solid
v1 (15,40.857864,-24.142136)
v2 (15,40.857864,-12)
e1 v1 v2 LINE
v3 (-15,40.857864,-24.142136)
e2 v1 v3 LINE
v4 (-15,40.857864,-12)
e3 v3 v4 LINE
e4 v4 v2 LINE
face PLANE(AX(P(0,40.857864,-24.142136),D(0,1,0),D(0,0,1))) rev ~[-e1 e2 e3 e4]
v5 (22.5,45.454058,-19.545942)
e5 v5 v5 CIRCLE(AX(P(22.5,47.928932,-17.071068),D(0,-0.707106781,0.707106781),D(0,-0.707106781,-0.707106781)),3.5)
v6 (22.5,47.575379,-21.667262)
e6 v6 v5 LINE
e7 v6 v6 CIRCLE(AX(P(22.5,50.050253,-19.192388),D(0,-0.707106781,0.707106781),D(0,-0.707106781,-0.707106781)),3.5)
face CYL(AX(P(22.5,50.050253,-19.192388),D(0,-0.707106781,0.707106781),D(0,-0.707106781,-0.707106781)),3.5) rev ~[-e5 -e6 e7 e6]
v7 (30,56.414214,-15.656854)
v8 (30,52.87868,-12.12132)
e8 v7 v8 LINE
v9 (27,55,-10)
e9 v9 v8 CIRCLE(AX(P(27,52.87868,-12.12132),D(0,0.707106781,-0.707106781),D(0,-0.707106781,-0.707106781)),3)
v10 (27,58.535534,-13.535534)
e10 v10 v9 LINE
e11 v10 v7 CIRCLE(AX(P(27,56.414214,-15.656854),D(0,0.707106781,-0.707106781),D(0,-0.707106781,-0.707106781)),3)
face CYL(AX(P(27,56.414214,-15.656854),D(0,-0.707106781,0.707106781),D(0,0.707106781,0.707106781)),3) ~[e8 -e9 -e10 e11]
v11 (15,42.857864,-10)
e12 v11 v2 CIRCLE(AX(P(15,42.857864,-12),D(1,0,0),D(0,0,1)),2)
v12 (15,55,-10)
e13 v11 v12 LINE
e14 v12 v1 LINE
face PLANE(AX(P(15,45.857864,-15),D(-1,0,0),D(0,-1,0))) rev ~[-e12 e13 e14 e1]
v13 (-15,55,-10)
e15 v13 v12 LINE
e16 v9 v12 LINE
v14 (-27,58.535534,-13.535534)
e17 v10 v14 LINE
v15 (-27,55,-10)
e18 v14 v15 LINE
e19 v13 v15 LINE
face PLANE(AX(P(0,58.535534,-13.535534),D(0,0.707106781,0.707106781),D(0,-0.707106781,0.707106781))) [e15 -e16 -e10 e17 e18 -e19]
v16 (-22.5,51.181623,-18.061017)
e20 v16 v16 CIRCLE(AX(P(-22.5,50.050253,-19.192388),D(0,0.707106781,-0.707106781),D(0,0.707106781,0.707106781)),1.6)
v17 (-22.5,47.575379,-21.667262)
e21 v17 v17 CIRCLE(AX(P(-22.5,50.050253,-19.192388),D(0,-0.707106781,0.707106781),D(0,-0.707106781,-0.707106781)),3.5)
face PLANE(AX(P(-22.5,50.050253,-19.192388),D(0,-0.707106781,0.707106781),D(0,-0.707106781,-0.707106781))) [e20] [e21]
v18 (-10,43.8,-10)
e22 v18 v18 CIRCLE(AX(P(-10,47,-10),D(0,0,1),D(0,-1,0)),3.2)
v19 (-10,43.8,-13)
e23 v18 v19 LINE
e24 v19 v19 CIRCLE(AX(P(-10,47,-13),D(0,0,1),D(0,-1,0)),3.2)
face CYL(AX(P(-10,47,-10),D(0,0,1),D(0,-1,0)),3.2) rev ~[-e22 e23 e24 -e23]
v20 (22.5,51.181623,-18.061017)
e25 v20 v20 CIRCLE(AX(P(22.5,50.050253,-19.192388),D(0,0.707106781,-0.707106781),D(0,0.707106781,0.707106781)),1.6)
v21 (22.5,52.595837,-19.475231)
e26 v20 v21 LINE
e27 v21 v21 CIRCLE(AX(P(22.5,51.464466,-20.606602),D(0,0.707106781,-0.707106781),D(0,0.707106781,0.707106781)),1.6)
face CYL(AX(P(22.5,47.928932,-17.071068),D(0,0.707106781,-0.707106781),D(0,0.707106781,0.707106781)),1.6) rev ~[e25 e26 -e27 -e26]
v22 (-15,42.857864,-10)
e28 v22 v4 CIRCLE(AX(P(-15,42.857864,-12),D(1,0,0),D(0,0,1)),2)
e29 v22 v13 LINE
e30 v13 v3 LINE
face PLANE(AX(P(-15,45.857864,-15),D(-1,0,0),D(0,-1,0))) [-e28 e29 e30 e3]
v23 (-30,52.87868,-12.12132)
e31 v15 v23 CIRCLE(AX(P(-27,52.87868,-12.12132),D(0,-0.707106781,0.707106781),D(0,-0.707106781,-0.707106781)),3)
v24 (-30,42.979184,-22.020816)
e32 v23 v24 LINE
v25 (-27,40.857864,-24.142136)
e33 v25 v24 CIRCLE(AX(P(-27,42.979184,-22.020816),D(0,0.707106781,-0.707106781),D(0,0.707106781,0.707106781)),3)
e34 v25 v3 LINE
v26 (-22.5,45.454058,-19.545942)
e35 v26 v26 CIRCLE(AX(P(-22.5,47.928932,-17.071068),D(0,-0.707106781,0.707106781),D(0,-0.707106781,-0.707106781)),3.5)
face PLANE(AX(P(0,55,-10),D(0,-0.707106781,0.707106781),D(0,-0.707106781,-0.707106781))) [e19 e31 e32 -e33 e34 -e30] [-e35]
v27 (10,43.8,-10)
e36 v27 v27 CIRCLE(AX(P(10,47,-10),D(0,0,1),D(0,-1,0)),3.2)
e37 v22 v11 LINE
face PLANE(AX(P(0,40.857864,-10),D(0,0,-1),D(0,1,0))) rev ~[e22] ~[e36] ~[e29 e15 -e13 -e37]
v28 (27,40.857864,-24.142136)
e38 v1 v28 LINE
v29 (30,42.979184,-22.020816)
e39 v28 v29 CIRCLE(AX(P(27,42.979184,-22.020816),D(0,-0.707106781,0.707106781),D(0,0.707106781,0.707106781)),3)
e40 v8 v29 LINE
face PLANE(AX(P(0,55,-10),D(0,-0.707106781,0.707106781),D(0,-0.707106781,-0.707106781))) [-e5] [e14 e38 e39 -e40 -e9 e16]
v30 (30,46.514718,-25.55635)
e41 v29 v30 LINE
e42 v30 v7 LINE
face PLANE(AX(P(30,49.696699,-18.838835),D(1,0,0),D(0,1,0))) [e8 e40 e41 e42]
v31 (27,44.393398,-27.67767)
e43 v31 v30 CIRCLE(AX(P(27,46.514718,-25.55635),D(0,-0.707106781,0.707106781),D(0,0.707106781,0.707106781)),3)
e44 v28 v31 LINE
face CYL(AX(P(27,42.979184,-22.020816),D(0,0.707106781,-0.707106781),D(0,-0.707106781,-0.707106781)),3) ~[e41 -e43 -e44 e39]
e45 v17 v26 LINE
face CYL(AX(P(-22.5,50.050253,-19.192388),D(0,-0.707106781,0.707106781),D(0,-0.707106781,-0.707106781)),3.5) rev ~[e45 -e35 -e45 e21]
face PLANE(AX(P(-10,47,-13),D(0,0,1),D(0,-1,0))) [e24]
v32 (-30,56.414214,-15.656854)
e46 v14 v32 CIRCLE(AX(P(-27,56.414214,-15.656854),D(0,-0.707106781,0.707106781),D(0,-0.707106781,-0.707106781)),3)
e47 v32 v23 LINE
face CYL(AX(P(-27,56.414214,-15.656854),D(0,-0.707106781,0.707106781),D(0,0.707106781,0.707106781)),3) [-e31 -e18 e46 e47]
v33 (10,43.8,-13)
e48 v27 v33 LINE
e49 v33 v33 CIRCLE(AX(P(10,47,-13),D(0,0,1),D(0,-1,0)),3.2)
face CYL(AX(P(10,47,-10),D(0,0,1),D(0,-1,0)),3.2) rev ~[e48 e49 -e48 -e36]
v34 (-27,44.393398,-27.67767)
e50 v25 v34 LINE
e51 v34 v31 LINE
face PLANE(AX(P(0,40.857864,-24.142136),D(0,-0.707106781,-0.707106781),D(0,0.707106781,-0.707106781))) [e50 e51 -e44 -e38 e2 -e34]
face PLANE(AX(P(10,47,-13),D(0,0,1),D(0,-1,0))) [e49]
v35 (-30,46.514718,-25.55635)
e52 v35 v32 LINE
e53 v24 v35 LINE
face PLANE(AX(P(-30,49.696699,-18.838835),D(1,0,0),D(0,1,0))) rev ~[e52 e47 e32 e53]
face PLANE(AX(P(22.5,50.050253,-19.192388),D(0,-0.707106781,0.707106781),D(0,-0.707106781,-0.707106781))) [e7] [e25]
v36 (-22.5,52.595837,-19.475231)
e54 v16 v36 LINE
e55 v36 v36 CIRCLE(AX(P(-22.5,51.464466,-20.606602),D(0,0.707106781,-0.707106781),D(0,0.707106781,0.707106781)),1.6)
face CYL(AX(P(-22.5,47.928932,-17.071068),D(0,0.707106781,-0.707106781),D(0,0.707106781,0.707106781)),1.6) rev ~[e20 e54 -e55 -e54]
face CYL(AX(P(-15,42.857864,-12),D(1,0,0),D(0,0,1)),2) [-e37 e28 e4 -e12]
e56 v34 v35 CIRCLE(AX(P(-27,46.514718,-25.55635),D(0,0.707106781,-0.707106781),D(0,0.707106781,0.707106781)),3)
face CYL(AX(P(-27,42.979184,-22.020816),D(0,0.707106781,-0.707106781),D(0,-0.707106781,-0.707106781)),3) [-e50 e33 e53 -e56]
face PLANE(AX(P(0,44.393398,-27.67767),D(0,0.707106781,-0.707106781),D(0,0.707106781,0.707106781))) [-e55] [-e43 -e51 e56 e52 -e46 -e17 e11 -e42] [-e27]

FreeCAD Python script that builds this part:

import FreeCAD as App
import Part
import Sketcher
Q = App.Units.Quantity


def edges_at(feature, points):
    """Names of the edges that pass closest to the given points."""
    edges = feature.Shape.Edges
    near = lambda p: min(range(len(edges)), key=lambda i: edges[i].distToShape(Part.Vertex(*p))[0])
    return sorted({f"Edge{near(p) + 1}" for p in points})


def add_polygon(sketch, points):
    """Adds a closed chain of lines whose ends are joined by coincident constraints."""
    first, n = sketch.GeometryCount, len(points)
    for a, b in zip(points, points[1:] + points[:1]):
        sketch.addGeometry(Part.LineSegment(App.Vector(*a, 0), App.Vector(*b, 0)), False)
    for i in range(n):
        sketch.addConstraint(Sketcher.Constraint("Coincident", first + i, 2, first + (i + 1) % n, 1))

doc = App.newDocument("Part")
params = doc.addObject("Spreadsheet::Sheet", "Params")
for row, (alias, value) in enumerate([
    ("sketch1_length", "20.000001 mm"),
    ("pad1_length", "30 mm"),
    ("sketch2_length", "20.000001 mm"),
    ("sketch2_length2", "5 mm"),
    ("pad2_length", "60 mm"),
    ("sketch3_diameter", "6.4 mm"),
    ("pocket1_length", "3 mm"),
    ("sketch4_diameter", "3.2 mm"),
    ("hole_diameter", "3.2 mm"),
    ("hole_cbore_diameter", "7 mm"),
    ("hole_cbore_depth", "3 mm"),
    ("fillet_radius", "2 mm"),
    ("fillet2_radius", "3 mm"),
], start=1):
    params.set(f"A{row}", alias)
    params.set(f"B{row}", "=" + value)
    params.setAlias(f"B{row}", alias)

body = doc.addObject("PartDesign::Body", "Body")

# Sketch on YZ plane
sketch1 = body.newObject("Sketcher::SketchObject", "Sketch")
sketch1.AttachmentSupport = (doc.getObject("YZ_Plane"), [""])
sketch1.MapMode = "FlatFace"
add_polygon(sketch1, [(-14, -14), (0, 0), (-14, 0)])  # lines 0-2
sketch1.addConstraint(Sketcher.Constraint("Horizontal", 1))
sketch1.addConstraint(Sketcher.Constraint("Vertical", 2))
sketch1.addConstraint(Sketcher.Constraint("Coincident", 0, 2, -1, 1))
sketch1.addConstraint(Sketcher.Constraint("Equal", 1, 2))
sketch1.addConstraint(Sketcher.Constraint("Distance", 0, Q("20.000001 mm")))
sketch1.setExpression("Constraints[7]", "Params.sketch1_length")
pad1 = body.newObject("PartDesign::Pad", "Pad")
pad1.Profile = sketch1
pad1.setExpression("Length", "Params.pad1_length")
pad1.Midplane = True

# Sketch on YZ plane
sketch2 = body.newObject("Sketcher::SketchObject", "Sketch001")
sketch2.AttachmentSupport = (doc.getObject("YZ_Plane"), [""])
sketch2.MapMode = "FlatFace"
add_polygon(sketch2, [(0, 0), (-14, -14), (-11, -18), (4, -4)])  # lines 0-3
sketch2.addConstraint(Sketcher.Constraint("Coincident", 3, 2, -1, 1))
sketch2.addConstraint(Sketcher.Constraint("Perpendicular", 0, 1))
sketch2.addConstraint(Sketcher.Constraint("Perpendicular", 1, 2))
sketch2.addConstraint(Sketcher.Constraint("Perpendicular", 2, 3))
sketch2.addConstraint(Sketcher.Constraint("Angle", 0, Q("-135 deg")))
sketch2.addConstraint(Sketcher.Constraint("Distance", 0, Q("20.000001 mm")))
sketch2.addConstraint(Sketcher.Constraint("Distance", 1, Q("5 mm")))
sketch2.setExpression("Constraints[9]", "Params.sketch2_length")
sketch2.setExpression("Constraints[10]", "Params.sketch2_length2")
pad2 = body.newObject("PartDesign::Pad", "Pad001")
pad2.Profile = sketch2
pad2.setExpression("Length", "Params.pad2_length")
pad2.Midplane = True

# Sketch on XY plane
sketch3 = body.newObject("Sketcher::SketchObject", "Sketch002")
sketch3.AttachmentSupport = (doc.getObject("XY_Plane"), [""])
sketch3.MapMode = "FlatFace"
sketch3.addGeometry(Part.Circle(App.Vector(10, -8, 0), App.Vector(0, 0, 1), 3.2), False)
sketch3.addGeometry(Part.Circle(App.Vector(-10, -8, 0), App.Vector(0, 0, 1), 3.2), False)
sketch3.addConstraint(Sketcher.Constraint("Equal", 0, 1))
sketch3.addConstraint(Sketcher.Constraint("Symmetric", 0, 3, 1, 3, -2))
sketch3.addConstraint(Sketcher.Constraint("Diameter", 0, Q("6.4 mm")))
sketch3.addConstraint(Sketcher.Constraint("DistanceX", -1, 1, 0, 3, Q("10 mm")))
sketch3.addConstraint(Sketcher.Constraint("DistanceY", 0, 3, -1, 1, Q("8 mm")))
sketch3.setExpression("Constraints[2]", "Params.sketch3_diameter")
pocket1 = body.newObject("PartDesign::Pocket", "Pocket")
pocket1.Profile = sketch3
pocket1.setExpression("Length", "Params.pocket1_length")

# Sketch on an angled plane
sketch4 = body.newObject("Sketcher::SketchObject", "Sketch003")
sketch4.Placement = App.Placement(App.Vector(0, 0, 0), App.Rotation(App.Vector(0, -0.707106781, -0.707106781), App.Vector(0.999999999, 0, 0), App.Vector(0, -0.707106781, 0.707106781), "ZXY"))
sketch4.addGeometry(Part.Circle(App.Vector(10, 22.5, 0), App.Vector(0, 0, 1), 1.6), False)
sketch4.addGeometry(Part.Circle(App.Vector(10, -22.5, 0), App.Vector(0, 0, 1), 1.6), False)
sketch4.addConstraint(Sketcher.Constraint("Equal", 0, 1))
sketch4.addConstraint(Sketcher.Constraint("Symmetric", 0, 3, 1, 3, -1))
sketch4.addConstraint(Sketcher.Constraint("Diameter", 0, Q("3.2 mm")))
sketch4.addConstraint(Sketcher.Constraint("DistanceX", -1, 1, 0, 3, Q("10 mm")))
sketch4.addConstraint(Sketcher.Constraint("DistanceY", 1, 3, 0, 3, Q("45 mm")))
sketch4.setExpression("Constraints[2]", "Params.sketch4_diameter")
doc.recompute()
hole = body.newObject("PartDesign::Hole", "Hole")
hole.Profile = sketch4
hole.ThreadType = "None"
hole.setExpression("Diameter", "Params.hole_diameter")
hole.DepthType = "ThroughAll"
hole.HoleCutType = "Counterbore"
hole.setExpression("HoleCutDiameter", "Params.hole_cbore_diameter")
hole.setExpression("HoleCutDepth", "Params.hole_cbore_depth")
doc.recompute()

fillet = body.newObject("PartDesign::Fillet", "Fillet")
fillet.Base = (hole, edges_at(hole, [(0, -14.142, 0)]))
fillet.setExpression("Radius", "Params.fillet_radius")
doc.recompute()

fillet2 = body.newObject("PartDesign::Fillet", "Fillet001")
fillet2.Base = (fillet, edges_at(fillet, [
    (-30, 1.768, -1.768),
    (-30, -12.374, -15.91),
    (30, 1.768, -1.768),
    (30, -12.374, -15.91),
]))
fillet2.setExpression("Radius", "Params.fillet2_radius")
body2 = doc.addObject("PartDesign::Body", "Body001")
doc.recompute()

body.Placement = App.Placement(App.Vector(0, 55, -10), App.Rotation(App.Vector(0, 0, 1), 0))
boolean = body2.newObject("PartDesign::Boolean", "Boolean")
boolean.Type = "Fuse"
boolean.addObjects([body])

doc.recompute()
